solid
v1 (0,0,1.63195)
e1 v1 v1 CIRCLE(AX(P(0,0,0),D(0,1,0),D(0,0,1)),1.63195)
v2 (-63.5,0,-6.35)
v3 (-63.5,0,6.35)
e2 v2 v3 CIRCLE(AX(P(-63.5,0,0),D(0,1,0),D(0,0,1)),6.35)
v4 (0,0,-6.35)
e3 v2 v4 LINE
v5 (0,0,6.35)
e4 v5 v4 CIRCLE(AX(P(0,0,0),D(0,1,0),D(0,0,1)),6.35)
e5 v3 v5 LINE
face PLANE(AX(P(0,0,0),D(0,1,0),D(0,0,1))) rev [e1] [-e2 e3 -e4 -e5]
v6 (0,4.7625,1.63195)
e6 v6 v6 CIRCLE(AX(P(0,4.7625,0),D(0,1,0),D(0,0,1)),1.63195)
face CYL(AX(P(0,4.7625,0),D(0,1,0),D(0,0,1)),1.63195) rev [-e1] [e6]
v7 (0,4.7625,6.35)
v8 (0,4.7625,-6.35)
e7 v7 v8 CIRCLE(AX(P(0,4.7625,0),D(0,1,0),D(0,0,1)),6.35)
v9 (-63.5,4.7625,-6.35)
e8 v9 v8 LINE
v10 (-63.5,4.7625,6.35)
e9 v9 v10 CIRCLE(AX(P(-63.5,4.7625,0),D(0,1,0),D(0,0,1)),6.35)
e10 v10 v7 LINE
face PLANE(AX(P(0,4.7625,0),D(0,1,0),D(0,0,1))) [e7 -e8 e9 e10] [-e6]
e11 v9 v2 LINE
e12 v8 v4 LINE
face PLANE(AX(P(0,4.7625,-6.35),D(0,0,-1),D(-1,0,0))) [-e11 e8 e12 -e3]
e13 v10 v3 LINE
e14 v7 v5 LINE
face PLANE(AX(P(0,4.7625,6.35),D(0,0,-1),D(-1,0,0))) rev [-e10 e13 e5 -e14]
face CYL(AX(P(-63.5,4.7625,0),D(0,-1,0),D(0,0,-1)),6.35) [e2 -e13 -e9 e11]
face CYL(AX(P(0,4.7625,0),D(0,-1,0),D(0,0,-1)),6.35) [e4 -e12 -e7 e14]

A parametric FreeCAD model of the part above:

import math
import FreeCAD as App
import Part
import Sketcher
Q = App.Units.Quantity

doc = App.newDocument("Part")
body = doc.addObject("PartDesign::Body", "Body")

sketch1 = body.newObject("Sketcher::SketchObject", "Sketch")
sketch1.AttachmentSupport = (doc.getObject("XZ_Plane"), [""])
sketch1.MapMode = "FlatFace"
sketch1.addGeometry(Part.LineSegment(App.Vector(0, -6, 0), App.Vector(-64, -6, 0)), False)
sketch1.addGeometry(Part.ArcOfCircle(Part.Circle(App.Vector(-64, 0, 0), App.Vector(0, 0, 1), 6), math.radians(90), math.radians(270)), False)
sketch1.addGeometry(Part.LineSegment(App.Vector(-64, 6, 0), App.Vector(0, 6, 0)), False)
sketch1.addGeometry(Part.ArcOfCircle(Part.Circle(App.Vector(0, 0, 0), App.Vector(0, 0, 1), 6), math.radians(-90), math.radians(90)), False)
sketch1.addConstraint(Sketcher.Constraint("Tangent", 0, 2, 1, 2))
sketch1.addConstraint(Sketcher.Constraint("Tangent", 1, 1, 2, 1))
sketch1.addConstraint(Sketcher.Constraint("Tangent", 2, 2, 3, 2))
sketch1.addConstraint(Sketcher.Constraint("Tangent", 3, 1, 0, 1))
sketch1.addConstraint(Sketcher.Constraint("Horizontal", 0))
sketch1.addConstraint(Sketcher.Constraint("Horizontal", 2))
sketch1.addConstraint(Sketcher.Constraint("Coincident", 3, 3, -1, 1))
sketch1.addConstraint(Sketcher.Constraint("Radius", 1, Q("0.25 in")))
sketch1.addConstraint(Sketcher.Constraint("DistanceX", 0, 2, 0, 1, Q("2.5 in")))
pad1 = body.newObject("PartDesign::Pad", "Pad")
pad1.Profile = sketch1
pad1.Length = Q("0.1875 in")
pad1.Reversed = True

sketch2 = body.newObject("Sketcher::SketchObject", "Sketch001")
sketch2.AttachmentSupport = (doc.getObject("XZ_Plane"), [""])
sketch2.MapMode = "FlatFace"
sketch2.AttachmentOffset = App.Placement(App.Vector(0, 0, -0.1875 * 25.4), App.Rotation())
sketch2.addGeometry(Part.Circle(App.Vector(0, 0, 0), App.Vector(0, 0, 1), 1.6), False)
sketch2.addConstraint(Sketcher.Constraint("Coincident", 0, 3, -1, 1))
sketch2.addConstraint(Sketcher.Constraint("Diameter", 0, Q("0.1285 in")))
doc.recompute()
hole = body.newObject("PartDesign::Hole", "Hole")
hole.Profile = sketch2
hole.ThreadType = "None"
hole.Diameter = Q("0.1285 in")
hole.DepthType = "ThroughAll"
hole.Reversed = True

doc.recompute()
